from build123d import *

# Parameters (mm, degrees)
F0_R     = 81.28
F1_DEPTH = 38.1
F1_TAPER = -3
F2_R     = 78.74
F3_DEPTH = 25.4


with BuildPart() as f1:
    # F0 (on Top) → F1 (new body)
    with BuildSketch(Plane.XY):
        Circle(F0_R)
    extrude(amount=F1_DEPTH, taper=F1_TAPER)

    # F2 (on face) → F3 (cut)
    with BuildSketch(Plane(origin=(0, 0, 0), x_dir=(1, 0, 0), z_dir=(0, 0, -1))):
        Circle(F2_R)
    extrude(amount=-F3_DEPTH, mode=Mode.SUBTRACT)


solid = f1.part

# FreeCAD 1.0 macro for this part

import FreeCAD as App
import Part
import Sketcher
Q = App.Units.Quantity

doc = App.newDocument("Part")
body = doc.addObject("PartDesign::Body", "Body")

# Sketch on XY plane
sketch1 = doc.addObject("Sketcher::SketchObject", "Sketch")
body.addObject(sketch1)
sketch1.AttachmentSupport = (doc.XY_Plane, [""])
sketch1.MapMode = "FlatFace"
sketch1.addGeometry(Part.Circle(App.Vector(0, 0, 0), App.Vector(0, 0, 1), 81), False)
sketch1.addConstraint([
    Sketcher.Constraint("Coincident", 0, 3, -1, 1),
    Sketcher.Constraint("Diameter", 0, Q("6.4 in")),
])
pad1 = doc.addObject("PartDesign::Pad", "Pad")
body.addObject(pad1)
pad1.Profile = sketch1
pad1.Length = Q("1.5 in")
pad1.TaperAngle = 3

# Sketch on XY plane
sketch2 = doc.addObject("Sketcher::SketchObject", "Sketch001")
body.addObject(sketch2)
sketch2.AttachmentSupport = (doc.XY_Plane, [""])
sketch2.MapMode = "FlatFace"
sketch2.addGeometry(Part.Circle(App.Vector(0, 0, 0), App.Vector(0, 0, 1), 79), False)
sketch2.addConstraint([
    Sketcher.Constraint("Coincident", 0, 3, -1, 1),
    Sketcher.Constraint("Diameter", 0, Q("6.2 in")),
])
pocket1 = doc.addObject("PartDesign::Pocket", "Pocket")
body.addObject(pocket1)
pocket1.Profile = sketch2
pocket1.Length = Q("1 in")
pocket1.Reversed = True

doc.recompute()
